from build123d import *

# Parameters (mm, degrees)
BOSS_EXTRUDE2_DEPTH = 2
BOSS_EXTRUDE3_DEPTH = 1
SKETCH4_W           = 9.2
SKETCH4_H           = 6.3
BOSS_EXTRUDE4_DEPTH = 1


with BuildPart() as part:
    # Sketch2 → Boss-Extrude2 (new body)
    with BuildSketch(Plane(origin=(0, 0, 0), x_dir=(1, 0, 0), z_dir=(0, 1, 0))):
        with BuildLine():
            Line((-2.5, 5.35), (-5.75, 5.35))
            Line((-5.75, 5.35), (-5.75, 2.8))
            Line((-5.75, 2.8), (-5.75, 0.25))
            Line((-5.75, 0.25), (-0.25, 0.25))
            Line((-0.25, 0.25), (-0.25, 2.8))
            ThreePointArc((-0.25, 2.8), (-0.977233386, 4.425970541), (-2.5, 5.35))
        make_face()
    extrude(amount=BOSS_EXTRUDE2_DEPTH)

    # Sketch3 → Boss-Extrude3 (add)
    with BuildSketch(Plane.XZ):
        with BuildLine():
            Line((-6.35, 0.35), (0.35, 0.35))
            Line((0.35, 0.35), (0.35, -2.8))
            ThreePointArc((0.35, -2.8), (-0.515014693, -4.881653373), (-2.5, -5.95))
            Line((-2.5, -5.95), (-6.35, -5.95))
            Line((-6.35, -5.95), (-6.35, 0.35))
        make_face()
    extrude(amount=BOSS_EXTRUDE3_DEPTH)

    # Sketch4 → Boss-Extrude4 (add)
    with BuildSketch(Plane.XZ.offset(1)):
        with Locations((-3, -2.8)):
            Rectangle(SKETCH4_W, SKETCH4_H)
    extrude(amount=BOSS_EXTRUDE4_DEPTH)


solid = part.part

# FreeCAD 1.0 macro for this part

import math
import FreeCAD as App
import Part
import Sketcher

V = App.Vector
Q = App.Units.Quantity


def add_polygon(sketch, points):
    """Adds a closed chain of lines whose ends are joined by coincident constraints."""
    first, n = sketch.GeometryCount, len(points)
    for a, b in zip(points, points[1:] + points[:1]):
        sketch.addGeometry(Part.LineSegment(App.Vector(*a, 0), App.Vector(*b, 0)), False)
    for i in range(n):
        sketch.addConstraint(Sketcher.Constraint("Coincident", first + i, 2, first + (i + 1) % n, 1))

doc = App.newDocument("Part")
body = doc.addObject("PartDesign::Body", "Body")

# Sketch on XZ plane
sketch1 = body.newObject("Sketcher::SketchObject", "Sketch")
sketch1.AttachmentSupport = (doc.getObject("XZ_Plane"), [""])
sketch1.MapMode = "FlatFace"
sketch1.addGeometry([
    Part.LineSegment(V(-2.5, -5.35, 0), V(-5.75, -5.35, 0)),  # 0
    Part.LineSegment(V(-5.75, -5.35, 0), V(-5.75, -0.25, 0)),  # 1
    Part.LineSegment(V(-5.75, -0.25, 0), V(-0.25, -0.25, 0)),  # 2
    Part.LineSegment(V(-0.25, -0.25, 0), V(-0.25, -2.8, 0)),  # 3
    Part.ArcOfCircle(Part.Circle(V(-3.219557, -2.447449, 0), V(0, 0, 1), 2.990412), math.radians(-76.076775), math.radians(-6.770557)),  # 4
], False)
sketch1.addConstraint([
    Sketcher.Constraint("Coincident", 0, 2, 1, 1),
    Sketcher.Constraint("Coincident", 1, 2, 2, 1),
    Sketcher.Constraint("Coincident", 2, 2, 3, 1),
    Sketcher.Constraint("Coincident", 3, 2, 4, 2),
    Sketcher.Constraint("Coincident", 4, 1, 0, 1),
    Sketcher.Constraint("Horizontal", 0),
    Sketcher.Constraint("Vertical", 1),
    Sketcher.Constraint("Horizontal", 2),
    Sketcher.Constraint("Vertical", 3),
    Sketcher.Constraint("DistanceX", 2, 1, 2, 2, Q("5.5 mm")),
    Sketcher.Constraint("DistanceY", 1, 1, 1, 2, Q("5.1 mm")),
    Sketcher.Constraint("DistanceX", 0, 2, 0, 1, Q("3.25 mm")),
    Sketcher.Constraint("DistanceY", 3, 2, 3, 1, Q("2.55 mm")),
    Sketcher.Constraint("DistanceY", 3, 2, -1, 1, Q("2.8 mm")),
    Sketcher.Constraint("DistanceX", 4, 1, -1, 1, Q("2.5 mm")),
    Sketcher.Constraint("Radius", 4, Q("2.990412 mm")),
])
pad1 = body.newObject("PartDesign::Pad", "Pad")
pad1.Profile = sketch1
pad1.Length = 2
pad1.Reversed = True

# Sketch on XZ plane
sketch2 = body.newObject("Sketcher::SketchObject", "Sketch001")
sketch2.AttachmentSupport = (doc.getObject("XZ_Plane"), [""])
sketch2.MapMode = "FlatFace"
sketch2.addGeometry([
    Part.LineSegment(V(0.35, 0.35, 0), V(-6.35, 0.35, 0)),  # 0
    Part.LineSegment(V(-6.35, 0.35, 0), V(-6.35, -5.95, 0)),  # 1
    Part.LineSegment(V(-6.35, -5.95, 0), V(-2.5, -5.95, 0)),  # 2
    Part.ArcOfCircle(Part.Circle(V(-3.009909, -2.624368, 0), V(0, 0, 1), 3.364496), math.radians(-81.282897), math.radians(-2.992292)),  # 3
    Part.LineSegment(V(0.35, -2.8, 0), V(0.35, 0.35, 0)),  # 4
], False)
sketch2.addConstraint([
    Sketcher.Constraint("Coincident", 0, 2, 1, 1),
    Sketcher.Constraint("Coincident", 1, 2, 2, 1),
    Sketcher.Constraint("Coincident", 2, 2, 3, 1),
    Sketcher.Constraint("Coincident", 3, 2, 4, 1),
    Sketcher.Constraint("Coincident", 4, 2, 0, 1),
    Sketcher.Constraint("Horizontal", 0),
    Sketcher.Constraint("Vertical", 1),
    Sketcher.Constraint("Horizontal", 2),
    Sketcher.Constraint("Vertical", 4),
    Sketcher.Constraint("DistanceX", 0, 2, 0, 1, Q("6.7 mm")),
    Sketcher.Constraint("DistanceY", 1, 2, 1, 1, Q("6.3 mm")),
    Sketcher.Constraint("DistanceX", 2, 1, 2, 2, Q("3.85 mm")),
    Sketcher.Constraint("DistanceY", 4, 1, 4, 2, Q("3.15 mm")),
    Sketcher.Constraint("DistanceX", 2, 2, -1, 1, Q("2.5 mm")),
    Sketcher.Constraint("DistanceY", 3, 2, -1, 1, Q("2.8 mm")),
    Sketcher.Constraint("Radius", 3, Q("3.364496 mm")),
])
pad2 = body.newObject("PartDesign::Pad", "Pad001")
pad2.Profile = sketch2
pad2.Length = 1

# Sketch on XZ plane
sketch3 = body.newObject("Sketcher::SketchObject", "Sketch002")
sketch3.AttachmentSupport = (doc.getObject("XZ_Plane"), [""])
sketch3.MapMode = "FlatFace"
sketch3.AttachmentOffset = App.Placement(V(0, 0, 1), App.Rotation())
add_polygon(sketch3, [(-7.6, 0.35), (-7.6, -5.95), (1.6, -5.95), (1.6, 0.35)])  # lines 0-3
sketch3.addConstraint([
    Sketcher.Constraint("Vertical", 0),
    Sketcher.Constraint("Horizontal", 1),
    Sketcher.Constraint("Vertical", 2),
    Sketcher.Constraint("Horizontal", 3),
    Sketcher.Constraint("DistanceX", 1, 1, 1, 2, Q("9.2 mm")),
    Sketcher.Constraint("DistanceY", 0, 2, 0, 1, Q("6.3 mm")),
    Sketcher.Constraint("DistanceX", 0, 2, -1, 1, Q("7.6 mm")),
    Sketcher.Constraint("DistanceY", 0, 2, -1, 1, Q("5.95 mm")),
])
pad3 = body.newObject("PartDesign::Pad", "Pad002")
pad3.Profile = sketch3
pad3.Length = 1

doc.recompute()
